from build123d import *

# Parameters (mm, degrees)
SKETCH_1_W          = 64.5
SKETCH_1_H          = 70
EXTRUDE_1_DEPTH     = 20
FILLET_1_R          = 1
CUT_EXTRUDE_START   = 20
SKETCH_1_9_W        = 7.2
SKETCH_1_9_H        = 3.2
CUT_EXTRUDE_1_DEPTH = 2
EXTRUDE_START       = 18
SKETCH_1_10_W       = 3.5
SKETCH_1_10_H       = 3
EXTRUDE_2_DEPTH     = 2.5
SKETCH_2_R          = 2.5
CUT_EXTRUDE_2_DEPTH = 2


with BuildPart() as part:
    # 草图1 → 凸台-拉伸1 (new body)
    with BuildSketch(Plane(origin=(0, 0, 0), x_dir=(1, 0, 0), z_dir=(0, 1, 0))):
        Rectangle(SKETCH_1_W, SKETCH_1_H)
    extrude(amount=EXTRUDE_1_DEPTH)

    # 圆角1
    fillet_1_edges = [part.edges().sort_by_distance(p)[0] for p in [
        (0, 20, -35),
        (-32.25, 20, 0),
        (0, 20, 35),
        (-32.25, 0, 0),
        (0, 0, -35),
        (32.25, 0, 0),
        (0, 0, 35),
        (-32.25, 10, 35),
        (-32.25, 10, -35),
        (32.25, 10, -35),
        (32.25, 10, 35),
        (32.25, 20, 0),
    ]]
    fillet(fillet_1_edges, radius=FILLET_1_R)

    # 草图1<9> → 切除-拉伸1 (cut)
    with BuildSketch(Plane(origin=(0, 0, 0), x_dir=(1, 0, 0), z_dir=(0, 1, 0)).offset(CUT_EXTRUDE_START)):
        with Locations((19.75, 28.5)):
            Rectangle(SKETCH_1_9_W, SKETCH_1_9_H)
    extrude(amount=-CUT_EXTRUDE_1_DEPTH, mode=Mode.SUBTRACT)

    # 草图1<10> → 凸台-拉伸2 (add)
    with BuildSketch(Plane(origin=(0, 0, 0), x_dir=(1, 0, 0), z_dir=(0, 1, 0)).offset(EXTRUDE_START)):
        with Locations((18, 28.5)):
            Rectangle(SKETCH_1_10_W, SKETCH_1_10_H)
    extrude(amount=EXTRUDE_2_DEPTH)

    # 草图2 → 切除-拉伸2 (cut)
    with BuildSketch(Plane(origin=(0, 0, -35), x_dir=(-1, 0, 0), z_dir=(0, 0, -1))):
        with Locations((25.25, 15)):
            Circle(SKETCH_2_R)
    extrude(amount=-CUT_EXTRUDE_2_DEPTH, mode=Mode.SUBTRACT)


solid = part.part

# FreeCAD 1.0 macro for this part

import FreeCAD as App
import Part
import Sketcher
from FreeCAD import Vector
Q = App.Units.Quantity

doc = App.newDocument("Part")
body = doc.addObject("PartDesign::Body", "Body")

# Sketch on XZ plane
sketch1 = body.newObject("Sketcher::SketchObject", "Sketch")
sketch1.AttachmentSupport = (doc.getObject("XZ_Plane"), [""])
sketch1.MapMode = "FlatFace"
sketch1.addGeometry(Part.LineSegment(Vector(-32, -35, 0), Vector(-32, 35, 0)), False)
sketch1.addGeometry(Part.LineSegment(Vector(-32, 35, 0), Vector(32, 35, 0)), False)
sketch1.addGeometry(Part.LineSegment(Vector(32, 35, 0), Vector(32, -35, 0)), False)
sketch1.addGeometry(Part.LineSegment(Vector(32, -35, 0), Vector(-32, -35, 0)), False)
sketch1.addConstraint(Sketcher.Constraint("Coincident", 0, 2, 1, 1))
sketch1.addConstraint(Sketcher.Constraint("Coincident", 1, 2, 2, 1))
sketch1.addConstraint(Sketcher.Constraint("Coincident", 2, 2, 3, 1))
sketch1.addConstraint(Sketcher.Constraint("Coincident", 3, 2, 0, 1))
sketch1.addConstraint(Sketcher.Constraint("Vertical", 0))
sketch1.addConstraint(Sketcher.Constraint("Horizontal", 1))
sketch1.addConstraint(Sketcher.Constraint("Vertical", 2))
sketch1.addConstraint(Sketcher.Constraint("Horizontal", 3))
sketch1.addConstraint(Sketcher.Constraint("Symmetric", 0, 2, 2, 2, -1, 1))
sketch1.addConstraint(Sketcher.Constraint("DistanceY", 0, 1, 0, 2, Q("70 mm")))
sketch1.addConstraint(Sketcher.Constraint("DistanceX", 1, 1, 1, 2, Q("64.5 mm")))
pad1 = body.newObject("PartDesign::Pad", "Pad")
pad1.Profile = sketch1
pad1.Length = 20
pad1.Reversed = True
doc.recompute()

fillet = body.newObject("PartDesign::Fillet", "Fillet")
fillet.Base = (pad1, ["Edge1"])
fillet.UseAllEdges = True
fillet.Radius = 1

# Sketch on XZ plane
sketch2 = body.newObject("Sketcher::SketchObject", "Sketch001")
sketch2.AttachmentSupport = (doc.getObject("XZ_Plane"), [""])
sketch2.MapMode = "FlatFace"
sketch2.AttachmentOffset = App.Placement(Vector(0, 0, -20), App.Rotation())
sketch2.addGeometry(Part.LineSegment(Vector(16.1, -30.1, 0), Vector(16.1, -26.9, 0)), False)
sketch2.addGeometry(Part.LineSegment(Vector(16.1, -26.9, 0), Vector(23.4, -26.9, 0)), False)
sketch2.addGeometry(Part.LineSegment(Vector(23.4, -26.9, 0), Vector(23.4, -30.1, 0)), False)
sketch2.addGeometry(Part.LineSegment(Vector(23.4, -30.1, 0), Vector(16.1, -30.1, 0)), False)
sketch2.addConstraint(Sketcher.Constraint("Coincident", 0, 2, 1, 1))
sketch2.addConstraint(Sketcher.Constraint("Coincident", 1, 2, 2, 1))
sketch2.addConstraint(Sketcher.Constraint("Coincident", 2, 2, 3, 1))
sketch2.addConstraint(Sketcher.Constraint("Coincident", 3, 2, 0, 1))
sketch2.addConstraint(Sketcher.Constraint("Vertical", 0))
sketch2.addConstraint(Sketcher.Constraint("Horizontal", 1))
sketch2.addConstraint(Sketcher.Constraint("Vertical", 2))
sketch2.addConstraint(Sketcher.Constraint("Horizontal", 3))
sketch2.addConstraint(Sketcher.Constraint("DistanceX", 1, 1, 1, 2, Q("7.2 mm")))
sketch2.addConstraint(Sketcher.Constraint("DistanceY", 0, 1, 0, 2, Q("3.2 mm")))
sketch2.addConstraint(Sketcher.Constraint("DistanceY", 0, 2, -1, 1, Q("26.9 mm")))
sketch2.addConstraint(Sketcher.Constraint("DistanceX", -1, 1, 0, 2, Q("16.15 mm")))
pocket1 = body.newObject("PartDesign::Pocket", "Pocket")
pocket1.Profile = sketch2
pocket1.Length = 2
pocket1.Reversed = True

# Sketch on XZ plane
sketch3 = body.newObject("Sketcher::SketchObject", "Sketch002")
sketch3.AttachmentSupport = (doc.getObject("XZ_Plane"), [""])
sketch3.MapMode = "FlatFace"
sketch3.AttachmentOffset = App.Placement(Vector(0, 0, -18), App.Rotation())
sketch3.addGeometry(Part.LineSegment(Vector(16.2, -30, 0), Vector(16.2, -27, 0)), False)
sketch3.addGeometry(Part.LineSegment(Vector(16.2, -27, 0), Vector(19.8, -27, 0)), False)
sketch3.addGeometry(Part.LineSegment(Vector(19.8, -27, 0), Vector(19.8, -30, 0)), False)
sketch3.addGeometry(Part.LineSegment(Vector(19.8, -30, 0), Vector(16.2, -30, 0)), False)
sketch3.addConstraint(Sketcher.Constraint("Coincident", 0, 2, 1, 1))
sketch3.addConstraint(Sketcher.Constraint("Coincident", 1, 2, 2, 1))
sketch3.addConstraint(Sketcher.Constraint("Coincident", 2, 2, 3, 1))
sketch3.addConstraint(Sketcher.Constraint("Coincident", 3, 2, 0, 1))
sketch3.addConstraint(Sketcher.Constraint("Vertical", 0))
sketch3.addConstraint(Sketcher.Constraint("Horizontal", 1))
sketch3.addConstraint(Sketcher.Constraint("Vertical", 2))
sketch3.addConstraint(Sketcher.Constraint("Horizontal", 3))
sketch3.addConstraint(Sketcher.Constraint("DistanceY", 0, 1, 0, 2, Q("3 mm")))
sketch3.addConstraint(Sketcher.Constraint("DistanceX", 1, 1, 1, 2, Q("3.5 mm")))
sketch3.addConstraint(Sketcher.Constraint("DistanceY", 0, 2, -1, 1, Q("27 mm")))
sketch3.addConstraint(Sketcher.Constraint("DistanceX", -1, 1, 0, 2, Q("16.25 mm")))
pad2 = body.newObject("PartDesign::Pad", "Pad001")
pad2.Profile = sketch3
pad2.Length = 2.5
pad2.Reversed = True

# Sketch on XY plane
sketch4 = body.newObject("Sketcher::SketchObject", "Sketch003")
sketch4.AttachmentSupport = (doc.getObject("XY_Plane"), [""])
sketch4.MapMode = "FlatFace"
sketch4.AttachmentOffset = App.Placement(Vector(0, 0, -35), App.Rotation())
sketch4.addGeometry(Part.Circle(Vector(-25.2, 15, 0), Vector(0, 0, 1), 2.5), False)
sketch4.addConstraint(Sketcher.Constraint("Diameter", 0, Q("5 mm")))
sketch4.addConstraint(Sketcher.Constraint("DistanceY", -1, 1, 0, 3, Q("15 mm")))
sketch4.addConstraint(Sketcher.Constraint("DistanceX", 0, 3, -1, 1, Q("25.25 mm")))
pocket2 = body.newObject("PartDesign::Pocket", "Pocket001")
pocket2.Profile = sketch4
pocket2.Length = 2
pocket2.Reversed = True

doc.recompute()
